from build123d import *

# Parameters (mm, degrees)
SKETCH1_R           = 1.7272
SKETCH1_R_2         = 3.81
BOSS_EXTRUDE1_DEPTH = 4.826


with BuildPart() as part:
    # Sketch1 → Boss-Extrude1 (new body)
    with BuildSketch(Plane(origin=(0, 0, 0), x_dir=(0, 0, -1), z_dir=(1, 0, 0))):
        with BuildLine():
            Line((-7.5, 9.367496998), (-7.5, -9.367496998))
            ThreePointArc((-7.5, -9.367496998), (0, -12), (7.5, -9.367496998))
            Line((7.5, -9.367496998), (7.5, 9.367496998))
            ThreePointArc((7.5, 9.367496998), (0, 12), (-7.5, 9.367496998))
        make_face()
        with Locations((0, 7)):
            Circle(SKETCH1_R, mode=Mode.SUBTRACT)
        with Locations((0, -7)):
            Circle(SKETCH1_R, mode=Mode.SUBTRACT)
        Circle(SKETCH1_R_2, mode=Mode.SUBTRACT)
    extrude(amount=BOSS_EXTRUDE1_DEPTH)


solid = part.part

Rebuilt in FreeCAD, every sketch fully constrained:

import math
import FreeCAD as App
import Part
import Sketcher
from FreeCAD import Vector
Q = App.Units.Quantity

doc = App.newDocument("Part")
body = doc.addObject("PartDesign::Body", "Body")

# Sketch on YZ plane
sketch1 = body.newObject("Sketcher::SketchObject", "Sketch")
sketch1.AttachmentSupport = (doc.getObject("YZ_Plane"), [""])
sketch1.MapMode = "FlatFace"
sketch1.addGeometry([
    Part.LineSegment(Vector(9.367497, 7.5, 0), Vector(-9.367497, 7.5, 0)),  # 0
    Part.ArcOfCircle(Part.Circle(Vector(0, 0, 0), Vector(0, 0, 1), 12), math.radians(141.317813), math.radians(218.682187)),  # 1
    Part.LineSegment(Vector(-9.367497, -7.5, 0), Vector(9.367497, -7.5, 0)),  # 2
    Part.ArcOfCircle(Part.Circle(Vector(0, 0, 0), Vector(0, 0, 1), 12), math.radians(-38.682187), math.radians(38.682187)),  # 3
    Part.Circle(Vector(-7, 0, 0), Vector(0, 0, 1), 1.7272),  # 4
    Part.Circle(Vector(0, 0, 0), Vector(0, 0, 1), 3.81),  # 5
    Part.Circle(Vector(7, 0, 0), Vector(0, 0, 1), 1.7272),  # 6
], False)
sketch1.addConstraint([
    Sketcher.Constraint("Coincident", 0, 2, 1, 1),
    Sketcher.Constraint("Coincident", 1, 2, 2, 1),
    Sketcher.Constraint("Coincident", 2, 2, 3, 1),
    Sketcher.Constraint("Coincident", 3, 2, 0, 1),
    Sketcher.Constraint("Horizontal", 0),
    Sketcher.Constraint("Horizontal", 2),
    Sketcher.Constraint("Coincident", 1, 3, -1, 1),
    Sketcher.Constraint("Coincident", 3, 3, -1, 1),
    Sketcher.Constraint("Coincident", 5, 3, -1, 1),
    Sketcher.Constraint("Equal", 1, 3),
    Sketcher.Constraint("Equal", 4, 6),
    Sketcher.Constraint("Symmetric", 4, 3, 6, 3, -1, 1),
    Sketcher.Constraint("PointOnObject", 4, 3, -1),
    Sketcher.Constraint("Vertical", 0, 2, 1, 2),
    Sketcher.Constraint("Diameter", 5, Q("0.3 in")),
    Sketcher.Constraint("Diameter", 4, Q("0.136 in")),
    Sketcher.Constraint("Radius", 1, Q("12 mm")),
    Sketcher.Constraint("DistanceX", 4, 3, -1, 1, Q("7 mm")),
    Sketcher.Constraint("DistanceY", -1, 1, 0, 2, Q("7.5 mm")),
])
pad1 = body.newObject("PartDesign::Pad", "Pad")
pad1.Profile = sketch1
pad1.Length = Q("0.19 in")

doc.recompute()
